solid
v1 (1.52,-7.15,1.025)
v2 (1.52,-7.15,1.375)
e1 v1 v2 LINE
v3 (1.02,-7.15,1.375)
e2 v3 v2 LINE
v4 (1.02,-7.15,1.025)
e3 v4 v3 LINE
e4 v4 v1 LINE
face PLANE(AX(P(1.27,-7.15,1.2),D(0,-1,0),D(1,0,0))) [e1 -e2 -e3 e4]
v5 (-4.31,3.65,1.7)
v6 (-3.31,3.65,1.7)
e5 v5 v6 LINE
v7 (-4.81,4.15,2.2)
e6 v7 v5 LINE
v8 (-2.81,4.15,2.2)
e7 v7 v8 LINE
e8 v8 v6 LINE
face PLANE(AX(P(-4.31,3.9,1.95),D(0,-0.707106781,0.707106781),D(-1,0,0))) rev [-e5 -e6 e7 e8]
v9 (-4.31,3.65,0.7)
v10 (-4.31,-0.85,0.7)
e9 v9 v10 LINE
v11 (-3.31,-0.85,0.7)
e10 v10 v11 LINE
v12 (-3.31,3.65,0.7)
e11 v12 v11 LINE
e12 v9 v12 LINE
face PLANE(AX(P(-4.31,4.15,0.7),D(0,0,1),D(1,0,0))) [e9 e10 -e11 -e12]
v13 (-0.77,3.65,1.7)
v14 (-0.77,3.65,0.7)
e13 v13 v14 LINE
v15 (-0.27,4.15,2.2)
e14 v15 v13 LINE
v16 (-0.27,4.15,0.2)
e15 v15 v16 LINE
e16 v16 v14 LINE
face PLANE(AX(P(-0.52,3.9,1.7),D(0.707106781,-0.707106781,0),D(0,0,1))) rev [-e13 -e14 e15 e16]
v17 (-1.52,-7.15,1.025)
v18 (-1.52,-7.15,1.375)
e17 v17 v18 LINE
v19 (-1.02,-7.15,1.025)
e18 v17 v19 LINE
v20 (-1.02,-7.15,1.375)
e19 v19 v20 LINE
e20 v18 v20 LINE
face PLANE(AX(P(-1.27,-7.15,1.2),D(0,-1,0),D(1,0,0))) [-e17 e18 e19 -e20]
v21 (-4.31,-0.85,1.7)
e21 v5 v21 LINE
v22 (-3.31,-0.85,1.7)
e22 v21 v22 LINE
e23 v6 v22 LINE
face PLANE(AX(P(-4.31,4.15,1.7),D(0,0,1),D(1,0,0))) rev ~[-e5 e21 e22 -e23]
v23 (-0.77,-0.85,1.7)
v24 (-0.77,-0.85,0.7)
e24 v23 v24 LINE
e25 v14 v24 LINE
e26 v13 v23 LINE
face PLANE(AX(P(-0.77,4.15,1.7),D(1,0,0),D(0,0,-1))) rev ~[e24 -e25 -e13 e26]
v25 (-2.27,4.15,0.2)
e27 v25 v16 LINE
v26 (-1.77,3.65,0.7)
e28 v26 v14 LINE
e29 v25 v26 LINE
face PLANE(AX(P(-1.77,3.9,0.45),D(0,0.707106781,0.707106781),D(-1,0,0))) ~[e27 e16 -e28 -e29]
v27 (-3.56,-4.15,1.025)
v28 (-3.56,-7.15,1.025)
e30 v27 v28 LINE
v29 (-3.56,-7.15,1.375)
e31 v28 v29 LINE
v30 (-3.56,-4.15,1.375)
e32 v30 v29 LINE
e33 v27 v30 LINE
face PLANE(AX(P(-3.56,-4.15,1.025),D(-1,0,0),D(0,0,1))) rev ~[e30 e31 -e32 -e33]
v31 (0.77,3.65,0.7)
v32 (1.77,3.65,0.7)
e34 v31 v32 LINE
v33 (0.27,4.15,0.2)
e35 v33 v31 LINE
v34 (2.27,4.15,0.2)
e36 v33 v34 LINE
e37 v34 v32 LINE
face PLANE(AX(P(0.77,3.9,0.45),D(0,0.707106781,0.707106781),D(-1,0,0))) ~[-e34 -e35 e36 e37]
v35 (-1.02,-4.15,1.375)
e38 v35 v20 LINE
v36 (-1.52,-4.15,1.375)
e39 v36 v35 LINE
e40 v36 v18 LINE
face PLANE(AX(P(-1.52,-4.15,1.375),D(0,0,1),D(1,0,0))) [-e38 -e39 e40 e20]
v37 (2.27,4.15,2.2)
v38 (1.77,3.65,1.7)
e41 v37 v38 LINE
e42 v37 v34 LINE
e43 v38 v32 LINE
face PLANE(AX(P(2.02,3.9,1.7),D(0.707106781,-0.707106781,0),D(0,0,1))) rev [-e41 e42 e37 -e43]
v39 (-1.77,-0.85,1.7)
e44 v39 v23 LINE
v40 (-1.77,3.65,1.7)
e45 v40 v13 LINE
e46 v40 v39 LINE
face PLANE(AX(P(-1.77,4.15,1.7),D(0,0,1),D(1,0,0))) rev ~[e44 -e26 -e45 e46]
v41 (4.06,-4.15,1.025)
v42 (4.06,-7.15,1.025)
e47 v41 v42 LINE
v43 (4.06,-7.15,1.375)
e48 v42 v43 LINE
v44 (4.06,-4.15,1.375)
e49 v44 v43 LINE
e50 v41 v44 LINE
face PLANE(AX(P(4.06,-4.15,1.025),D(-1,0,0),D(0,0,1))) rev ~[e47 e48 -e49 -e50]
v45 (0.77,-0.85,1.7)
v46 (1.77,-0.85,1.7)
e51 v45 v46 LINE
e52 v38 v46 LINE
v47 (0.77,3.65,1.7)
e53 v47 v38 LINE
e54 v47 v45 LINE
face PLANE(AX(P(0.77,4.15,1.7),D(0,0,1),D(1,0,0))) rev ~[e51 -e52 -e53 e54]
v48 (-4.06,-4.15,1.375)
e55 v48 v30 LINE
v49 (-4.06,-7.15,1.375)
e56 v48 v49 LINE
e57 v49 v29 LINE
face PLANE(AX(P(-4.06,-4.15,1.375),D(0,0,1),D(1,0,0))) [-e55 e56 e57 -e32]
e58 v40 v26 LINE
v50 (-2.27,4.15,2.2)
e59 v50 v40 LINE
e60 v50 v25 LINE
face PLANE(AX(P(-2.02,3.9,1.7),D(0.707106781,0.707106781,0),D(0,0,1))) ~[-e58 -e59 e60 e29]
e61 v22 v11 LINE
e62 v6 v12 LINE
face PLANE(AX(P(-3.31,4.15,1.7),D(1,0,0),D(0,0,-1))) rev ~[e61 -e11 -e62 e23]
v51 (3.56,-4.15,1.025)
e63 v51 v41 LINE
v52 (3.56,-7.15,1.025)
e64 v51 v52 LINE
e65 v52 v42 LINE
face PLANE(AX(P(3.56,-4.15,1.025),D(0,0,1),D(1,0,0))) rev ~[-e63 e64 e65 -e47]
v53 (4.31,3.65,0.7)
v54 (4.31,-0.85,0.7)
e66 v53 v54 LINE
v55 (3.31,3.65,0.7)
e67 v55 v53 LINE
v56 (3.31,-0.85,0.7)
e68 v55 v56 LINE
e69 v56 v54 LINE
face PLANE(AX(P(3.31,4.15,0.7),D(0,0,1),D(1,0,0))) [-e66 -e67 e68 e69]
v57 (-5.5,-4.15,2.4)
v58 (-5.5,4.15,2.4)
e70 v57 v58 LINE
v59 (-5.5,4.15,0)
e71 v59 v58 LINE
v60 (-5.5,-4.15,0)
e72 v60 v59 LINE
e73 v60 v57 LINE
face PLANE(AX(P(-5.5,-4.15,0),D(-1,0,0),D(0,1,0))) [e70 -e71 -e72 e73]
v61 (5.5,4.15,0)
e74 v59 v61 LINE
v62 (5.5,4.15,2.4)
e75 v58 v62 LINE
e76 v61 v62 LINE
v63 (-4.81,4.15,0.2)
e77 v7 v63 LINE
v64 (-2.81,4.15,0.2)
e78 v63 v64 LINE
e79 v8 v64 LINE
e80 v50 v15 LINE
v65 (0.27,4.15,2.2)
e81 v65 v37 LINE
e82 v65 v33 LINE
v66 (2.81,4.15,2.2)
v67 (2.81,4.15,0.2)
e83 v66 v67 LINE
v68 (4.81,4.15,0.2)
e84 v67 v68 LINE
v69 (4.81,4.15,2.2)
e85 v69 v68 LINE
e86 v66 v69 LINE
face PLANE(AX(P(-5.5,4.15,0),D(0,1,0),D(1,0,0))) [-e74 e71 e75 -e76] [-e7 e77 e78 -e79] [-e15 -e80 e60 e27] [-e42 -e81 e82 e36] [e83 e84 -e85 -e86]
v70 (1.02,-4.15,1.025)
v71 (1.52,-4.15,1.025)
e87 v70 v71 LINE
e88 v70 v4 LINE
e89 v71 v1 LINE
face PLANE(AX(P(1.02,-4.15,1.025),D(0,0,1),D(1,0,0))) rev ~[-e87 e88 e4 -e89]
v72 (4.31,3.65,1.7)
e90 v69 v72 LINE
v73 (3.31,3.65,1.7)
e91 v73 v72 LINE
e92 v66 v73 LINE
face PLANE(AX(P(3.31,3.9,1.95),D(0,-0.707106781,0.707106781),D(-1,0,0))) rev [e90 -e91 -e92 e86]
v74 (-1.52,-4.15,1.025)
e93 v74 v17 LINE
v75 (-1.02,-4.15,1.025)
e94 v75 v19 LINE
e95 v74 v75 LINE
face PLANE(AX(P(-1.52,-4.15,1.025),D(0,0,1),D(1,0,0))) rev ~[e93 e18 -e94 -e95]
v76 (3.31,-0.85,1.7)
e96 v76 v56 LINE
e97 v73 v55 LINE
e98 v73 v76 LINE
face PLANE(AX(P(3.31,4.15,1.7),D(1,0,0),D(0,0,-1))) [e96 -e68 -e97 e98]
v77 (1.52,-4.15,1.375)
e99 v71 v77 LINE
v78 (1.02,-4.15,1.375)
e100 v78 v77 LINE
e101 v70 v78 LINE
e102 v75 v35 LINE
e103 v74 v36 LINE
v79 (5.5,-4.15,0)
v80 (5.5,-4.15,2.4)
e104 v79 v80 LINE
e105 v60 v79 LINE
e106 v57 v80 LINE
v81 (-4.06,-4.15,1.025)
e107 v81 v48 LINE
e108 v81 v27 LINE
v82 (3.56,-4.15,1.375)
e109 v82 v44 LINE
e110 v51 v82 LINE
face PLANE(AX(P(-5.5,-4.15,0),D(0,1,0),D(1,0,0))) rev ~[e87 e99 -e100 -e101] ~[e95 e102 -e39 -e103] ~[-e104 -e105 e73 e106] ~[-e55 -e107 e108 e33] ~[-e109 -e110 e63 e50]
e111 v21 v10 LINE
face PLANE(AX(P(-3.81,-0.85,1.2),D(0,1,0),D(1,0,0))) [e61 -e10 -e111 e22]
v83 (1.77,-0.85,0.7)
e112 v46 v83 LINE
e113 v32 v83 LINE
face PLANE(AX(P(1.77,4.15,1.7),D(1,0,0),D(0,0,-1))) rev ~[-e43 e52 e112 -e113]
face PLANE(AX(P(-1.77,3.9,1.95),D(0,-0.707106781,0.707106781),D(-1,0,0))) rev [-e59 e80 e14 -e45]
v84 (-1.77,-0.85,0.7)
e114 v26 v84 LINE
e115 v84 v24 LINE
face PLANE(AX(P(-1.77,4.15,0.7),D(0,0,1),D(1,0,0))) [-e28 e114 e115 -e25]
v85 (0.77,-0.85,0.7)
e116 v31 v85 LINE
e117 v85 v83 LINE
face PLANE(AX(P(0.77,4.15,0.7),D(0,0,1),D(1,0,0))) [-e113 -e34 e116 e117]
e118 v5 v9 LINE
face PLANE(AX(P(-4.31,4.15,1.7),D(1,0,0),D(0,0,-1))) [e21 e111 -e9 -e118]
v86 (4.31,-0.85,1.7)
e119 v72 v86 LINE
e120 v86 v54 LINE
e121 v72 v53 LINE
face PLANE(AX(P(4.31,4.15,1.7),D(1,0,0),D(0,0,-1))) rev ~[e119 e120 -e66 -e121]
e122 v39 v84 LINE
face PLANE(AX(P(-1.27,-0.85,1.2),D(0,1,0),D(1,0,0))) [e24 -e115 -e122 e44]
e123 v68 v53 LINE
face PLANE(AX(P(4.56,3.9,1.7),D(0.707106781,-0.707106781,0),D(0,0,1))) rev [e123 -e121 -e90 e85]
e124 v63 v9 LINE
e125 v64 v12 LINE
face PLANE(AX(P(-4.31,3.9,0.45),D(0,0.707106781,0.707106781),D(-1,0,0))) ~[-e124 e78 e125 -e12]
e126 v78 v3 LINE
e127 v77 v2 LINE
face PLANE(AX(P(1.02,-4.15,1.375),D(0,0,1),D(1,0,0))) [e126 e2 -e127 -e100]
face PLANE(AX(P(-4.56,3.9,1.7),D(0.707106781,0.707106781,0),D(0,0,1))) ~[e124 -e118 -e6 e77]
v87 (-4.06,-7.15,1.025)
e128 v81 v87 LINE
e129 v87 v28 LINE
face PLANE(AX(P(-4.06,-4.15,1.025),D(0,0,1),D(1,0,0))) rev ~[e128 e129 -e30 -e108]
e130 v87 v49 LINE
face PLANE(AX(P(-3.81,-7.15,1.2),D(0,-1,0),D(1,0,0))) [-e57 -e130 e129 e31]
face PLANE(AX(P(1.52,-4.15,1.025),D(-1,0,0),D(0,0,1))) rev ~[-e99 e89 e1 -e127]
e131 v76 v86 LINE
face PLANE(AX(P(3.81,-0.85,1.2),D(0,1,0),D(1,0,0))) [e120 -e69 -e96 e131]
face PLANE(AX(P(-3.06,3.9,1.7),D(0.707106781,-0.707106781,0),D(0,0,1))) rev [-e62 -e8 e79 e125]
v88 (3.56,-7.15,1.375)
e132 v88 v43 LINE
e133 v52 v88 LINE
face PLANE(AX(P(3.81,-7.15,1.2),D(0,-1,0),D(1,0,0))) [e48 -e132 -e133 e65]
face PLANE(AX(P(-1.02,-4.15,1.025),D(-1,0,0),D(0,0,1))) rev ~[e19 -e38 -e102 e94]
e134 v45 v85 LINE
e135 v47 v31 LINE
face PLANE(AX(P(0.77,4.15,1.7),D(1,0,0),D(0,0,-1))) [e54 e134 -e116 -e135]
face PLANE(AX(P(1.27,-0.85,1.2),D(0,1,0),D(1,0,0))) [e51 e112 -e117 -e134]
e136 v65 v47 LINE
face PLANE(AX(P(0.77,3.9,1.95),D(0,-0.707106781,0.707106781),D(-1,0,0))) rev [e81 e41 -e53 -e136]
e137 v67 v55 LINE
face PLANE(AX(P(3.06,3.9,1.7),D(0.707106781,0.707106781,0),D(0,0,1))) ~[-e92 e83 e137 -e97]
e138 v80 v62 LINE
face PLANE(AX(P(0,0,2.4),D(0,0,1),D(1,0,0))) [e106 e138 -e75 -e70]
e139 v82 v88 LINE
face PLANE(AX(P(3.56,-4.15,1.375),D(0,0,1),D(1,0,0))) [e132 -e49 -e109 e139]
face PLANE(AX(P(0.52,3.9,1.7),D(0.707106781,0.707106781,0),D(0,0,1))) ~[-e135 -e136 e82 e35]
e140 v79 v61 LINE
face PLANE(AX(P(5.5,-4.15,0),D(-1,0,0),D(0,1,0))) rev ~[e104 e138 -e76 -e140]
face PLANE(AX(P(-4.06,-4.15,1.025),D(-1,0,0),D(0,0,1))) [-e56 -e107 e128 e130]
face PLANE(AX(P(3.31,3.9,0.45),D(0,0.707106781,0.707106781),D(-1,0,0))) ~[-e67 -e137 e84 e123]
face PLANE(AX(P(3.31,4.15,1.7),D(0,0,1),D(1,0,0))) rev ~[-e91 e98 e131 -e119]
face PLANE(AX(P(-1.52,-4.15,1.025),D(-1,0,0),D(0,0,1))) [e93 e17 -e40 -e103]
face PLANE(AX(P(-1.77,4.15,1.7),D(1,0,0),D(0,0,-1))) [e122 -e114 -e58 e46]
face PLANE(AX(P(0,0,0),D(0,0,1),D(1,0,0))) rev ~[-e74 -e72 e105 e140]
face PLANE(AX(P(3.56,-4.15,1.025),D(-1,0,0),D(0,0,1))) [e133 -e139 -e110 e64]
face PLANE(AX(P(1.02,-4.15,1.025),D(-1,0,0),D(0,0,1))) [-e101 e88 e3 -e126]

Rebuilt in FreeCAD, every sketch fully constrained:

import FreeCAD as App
import Part
import Sketcher

V = App.Vector
Q = App.Units.Quantity


def edges_at(feature, points):
    """Names of the edges that pass closest to the given points."""
    edges = feature.Shape.Edges
    near = lambda p: min(range(len(edges)), key=lambda i: edges[i].distToShape(Part.Vertex(*p))[0])
    return sorted({f"Edge{near(p) + 1}" for p in points})

doc = App.newDocument("Part")
body = doc.addObject("PartDesign::Body", "Body")

sketch1 = body.newObject("Sketcher::SketchObject", "Sketch")
sketch1.AttachmentSupport = (doc.getObject("XY_Plane"), [""])
sketch1.MapMode = "FlatFace"
sketch1.addGeometry([
    Part.LineSegment(V(-5.5, 4.15, 0), V(-5.5, -4.15, 0)),
    Part.LineSegment(V(-5.5, -4.15, 0), V(5.5, -4.15, 0)),
    Part.LineSegment(V(5.5, -4.15, 0), V(5.5, 4.15, 0)),
    Part.LineSegment(V(5.5, 4.15, 0), V(-5.5, 4.15, 0)),
], False)
sketch1.addConstraint([
    Sketcher.Constraint("Coincident", 0, 2, 1, 1),
    Sketcher.Constraint("Coincident", 1, 2, 2, 1),
    Sketcher.Constraint("Coincident", 2, 2, 3, 1),
    Sketcher.Constraint("Coincident", 3, 2, 0, 1),
    Sketcher.Constraint("Vertical", 0),
    Sketcher.Constraint("Horizontal", 1),
    Sketcher.Constraint("Vertical", 2),
    Sketcher.Constraint("Horizontal", 3),
    Sketcher.Constraint("Symmetric", 0, 2, 2, 2, -1, 1),
    Sketcher.Constraint("DistanceX", 1, 1, 1, 2, Q("11 mm")),
    Sketcher.Constraint("DistanceY", 0, 2, 0, 1, Q("8.3 mm")),
])
pad1 = body.newObject("PartDesign::Pad", "Pad")
pad1.Profile = sketch1
pad1.Length = 2.4

sketch2 = body.newObject("Sketcher::SketchObject", "Sketch001")
sketch2.AttachmentSupport = (doc.getObject("XZ_Plane"), [""])
sketch2.MapMode = "FlatFace"
sketch2.AttachmentOffset = App.Placement(V(0, 0, -4.15), App.Rotation())
sketch2.addGeometry([
    Part.LineSegment(V(-4.31, 0.7, 0), V(-4.31, 1.7, 0)),
    Part.LineSegment(V(-4.31, 1.7, 0), V(-3.31, 1.7, 0)),
    Part.LineSegment(V(-3.31, 1.7, 0), V(-3.31, 0.7, 0)),
    Part.LineSegment(V(-3.31, 0.7, 0), V(-4.31, 0.7, 0)),
    Part.LineSegment(V(-1.77, 0.7, 0), V(-1.77, 1.7, 0)),
    Part.LineSegment(V(-1.77, 1.7, 0), V(-0.77, 1.7, 0)),
    Part.LineSegment(V(-0.77, 1.7, 0), V(-0.77, 0.7, 0)),
    Part.LineSegment(V(-0.77, 0.7, 0), V(-1.77, 0.7, 0)),
    Part.LineSegment(V(0.77, 0.7, 0), V(0.77, 1.7, 0)),
    Part.LineSegment(V(0.77, 1.7, 0), V(1.77, 1.7, 0)),
    Part.LineSegment(V(1.77, 1.7, 0), V(1.77, 0.7, 0)),
    Part.LineSegment(V(1.77, 0.7, 0), V(0.77, 0.7, 0)),
    Part.LineSegment(V(3.31, 0.7, 0), V(3.31, 1.7, 0)),
    Part.LineSegment(V(3.31, 1.7, 0), V(4.31, 1.7, 0)),
    Part.LineSegment(V(4.31, 1.7, 0), V(4.31, 0.7, 0)),
    Part.LineSegment(V(4.31, 0.7, 0), V(3.31, 0.7, 0)),
], False)
sketch2.addConstraint([
    Sketcher.Constraint("Coincident", 0, 2, 1, 1),
    Sketcher.Constraint("Coincident", 1, 2, 2, 1),
    Sketcher.Constraint("Coincident", 2, 2, 3, 1),
    Sketcher.Constraint("Coincident", 3, 2, 0, 1),
    Sketcher.Constraint("Coincident", 4, 2, 5, 1),
    Sketcher.Constraint("Coincident", 5, 2, 6, 1),
    Sketcher.Constraint("Coincident", 6, 2, 7, 1),
    Sketcher.Constraint("Coincident", 7, 2, 4, 1),
    Sketcher.Constraint("Coincident", 8, 2, 9, 1),
    Sketcher.Constraint("Coincident", 9, 2, 10, 1),
    Sketcher.Constraint("Coincident", 10, 2, 11, 1),
    Sketcher.Constraint("Coincident", 11, 2, 8, 1),
    Sketcher.Constraint("Coincident", 12, 2, 13, 1),
    Sketcher.Constraint("Coincident", 13, 2, 14, 1),
    Sketcher.Constraint("Coincident", 14, 2, 15, 1),
    Sketcher.Constraint("Coincident", 15, 2, 12, 1),
    Sketcher.Constraint("Vertical", 0),
    Sketcher.Constraint("Horizontal", 1),
    Sketcher.Constraint("Vertical", 2),
    Sketcher.Constraint("Horizontal", 3),
    Sketcher.Constraint("Vertical", 4),
    Sketcher.Constraint("Horizontal", 5),
    Sketcher.Constraint("Vertical", 6),
    Sketcher.Constraint("Horizontal", 7),
    Sketcher.Constraint("Vertical", 8),
    Sketcher.Constraint("Horizontal", 9),
    Sketcher.Constraint("Vertical", 10),
    Sketcher.Constraint("Horizontal", 11),
    Sketcher.Constraint("Vertical", 12),
    Sketcher.Constraint("Horizontal", 13),
    Sketcher.Constraint("Vertical", 14),
    Sketcher.Constraint("Horizontal", 15),
    Sketcher.Constraint("Symmetric", 5, 2, 8, 2, -2),
    Sketcher.Constraint("Symmetric", 7, 2, 10, 2, -2),
    Sketcher.Constraint("Symmetric", 1, 2, 12, 2, -2),
    Sketcher.Constraint("Symmetric", 3, 2, 14, 2, -2),
    Sketcher.Constraint("Horizontal", 1, 2, 4, 2),
    Sketcher.Constraint("Horizontal", 3, 2, 6, 2),
    Sketcher.Constraint("Equal", 3, 5),
    Sketcher.Constraint("Equal", 15, 0),
    Sketcher.Constraint("DistanceX", 1, 1, 1, 2, Q("1 mm")),
    Sketcher.Constraint("DistanceY", -1, 1, 0, 2, Q("1.7 mm")),
    Sketcher.Constraint("DistanceX", 0, 2, -1, 1, Q("4.31 mm")),
    Sketcher.Constraint("DistanceX", 4, 2, -1, 1, Q("1.77 mm")),
])
pocket1 = body.newObject("PartDesign::Pocket", "Pocket")
pocket1.Profile = sketch2
pocket1.Length = 5
pocket1.Reversed = True
doc.recompute()

chamfer = body.newObject("PartDesign::Chamfer", "Chamfer")
chamfer.Base = (pocket1, edges_at(pocket1, [
    (-3.31, 4.15, 1.2),
    (-3.81, 4.15, 0.7),
    (-4.31, 4.15, 1.2),
    (-3.81, 4.15, 1.7),
    (-1.27, 4.15, 1.7),
    (-0.77, 4.15, 1.2),
    (-1.27, 4.15, 0.7),
    (-1.77, 4.15, 1.2),
    (1.27, 4.15, 1.7),
    (1.77, 4.15, 1.2),
    (1.27, 4.15, 0.7),
    (0.77, 4.15, 1.2),
    (3.81, 4.15, 1.7),
    (4.31, 4.15, 1.2),
    (3.81, 4.15, 0.7),
    (3.31, 4.15, 1.2),
]))
chamfer.Size = 0.5

sketch3 = body.newObject("Sketcher::SketchObject", "Sketch002")
sketch3.AttachmentSupport = (doc.getObject("XZ_Plane"), [""])
sketch3.MapMode = "FlatFace"
sketch3.AttachmentOffset = App.Placement(V(0, 0, 4.15), App.Rotation())
sketch3.addGeometry([
    Part.LineSegment(V(-1.52, 1.375, 0), V(-1.52, 1.025, 0)),
    Part.LineSegment(V(-1.52, 1.025, 0), V(-1.02, 1.025, 0)),
    Part.LineSegment(V(-1.02, 1.025, 0), V(-1.02, 1.375, 0)),
    Part.LineSegment(V(-1.02, 1.375, 0), V(-1.52, 1.375, 0)),
    Part.LineSegment(V(-4.06, 1.375, 0), V(-4.06, 1.025, 0)),
    Part.LineSegment(V(-4.06, 1.025, 0), V(-3.56, 1.025, 0)),
    Part.LineSegment(V(-3.56, 1.025, 0), V(-3.56, 1.375, 0)),
    Part.LineSegment(V(-3.56, 1.375, 0), V(-4.06, 1.375, 0)),
    Part.LineSegment(V(1.02, 1.375, 0), V(1.02, 1.025, 0)),
    Part.LineSegment(V(1.02, 1.025, 0), V(1.52, 1.025, 0)),
    Part.LineSegment(V(1.52, 1.025, 0), V(1.52, 1.375, 0)),
    Part.LineSegment(V(1.52, 1.375, 0), V(1.02, 1.375, 0)),
    Part.LineSegment(V(3.56, 1.375, 0), V(3.56, 1.025, 0)),
    Part.LineSegment(V(3.56, 1.025, 0), V(4.06, 1.025, 0)),
    Part.LineSegment(V(4.06, 1.025, 0), V(4.06, 1.375, 0)),
    Part.LineSegment(V(4.06, 1.375, 0), V(3.56, 1.375, 0)),
], False)
sketch3.addConstraint([
    Sketcher.Constraint("Coincident", 0, 2, 1, 1),
    Sketcher.Constraint("Coincident", 1, 2, 2, 1),
    Sketcher.Constraint("Coincident", 2, 2, 3, 1),
    Sketcher.Constraint("Coincident", 3, 2, 0, 1),
    Sketcher.Constraint("Coincident", 4, 2, 5, 1),
    Sketcher.Constraint("Coincident", 5, 2, 6, 1),
    Sketcher.Constraint("Coincident", 6, 2, 7, 1),
    Sketcher.Constraint("Coincident", 7, 2, 4, 1),
    Sketcher.Constraint("Coincident", 8, 2, 9, 1),
    Sketcher.Constraint("Coincident", 9, 2, 10, 1),
    Sketcher.Constraint("Coincident", 10, 2, 11, 1),
    Sketcher.Constraint("Coincident", 11, 2, 8, 1),
    Sketcher.Constraint("Coincident", 12, 2, 13, 1),
    Sketcher.Constraint("Coincident", 13, 2, 14, 1),
    Sketcher.Constraint("Coincident", 14, 2, 15, 1),
    Sketcher.Constraint("Coincident", 15, 2, 12, 1),
    Sketcher.Constraint("Vertical", 0),
    Sketcher.Constraint("Horizontal", 1),
    Sketcher.Constraint("Vertical", 2),
    Sketcher.Constraint("Horizontal", 3),
    Sketcher.Constraint("Vertical", 4),
    Sketcher.Constraint("Horizontal", 5),
    Sketcher.Constraint("Vertical", 6),
    Sketcher.Constraint("Horizontal", 7),
    Sketcher.Constraint("Vertical", 8),
    Sketcher.Constraint("Horizontal", 9),
    Sketcher.Constraint("Vertical", 10),
    Sketcher.Constraint("Horizontal", 11),
    Sketcher.Constraint("Vertical", 12),
    Sketcher.Constraint("Horizontal", 13),
    Sketcher.Constraint("Vertical", 14),
    Sketcher.Constraint("Horizontal", 15),
    Sketcher.Constraint("Symmetric", 1, 2, 8, 2, -2),
    Sketcher.Constraint("Symmetric", 3, 2, 10, 2, -2),
    Sketcher.Constraint("Symmetric", 5, 2, 12, 2, -2),
    Sketcher.Constraint("Symmetric", 7, 2, 14, 2, -2),
    Sketcher.Constraint("Horizontal", 1, 2, 4, 2),
    Sketcher.Constraint("Horizontal", 3, 2, 6, 2),
    Sketcher.Constraint("Equal", 3, 5),
    Sketcher.Constraint("DistanceX", 1, 1, 1, 2, Q("0.5 mm")),
    Sketcher.Constraint("DistanceY", 0, 2, 0, 1, Q("0.35 mm")),
    Sketcher.Constraint("DistanceX", 0, 2, -1, 1, Q("1.52 mm")),
    Sketcher.Constraint("DistanceX", 4, 2, -1, 1, Q("4.06 mm")),
    Sketcher.Constraint("DistanceY", -1, 1, 0, 2, Q("1.025 mm")),
])
pad2 = body.newObject("PartDesign::Pad", "Pad001")
pad2.Profile = sketch3
pad2.Length = 3

doc.recompute()
